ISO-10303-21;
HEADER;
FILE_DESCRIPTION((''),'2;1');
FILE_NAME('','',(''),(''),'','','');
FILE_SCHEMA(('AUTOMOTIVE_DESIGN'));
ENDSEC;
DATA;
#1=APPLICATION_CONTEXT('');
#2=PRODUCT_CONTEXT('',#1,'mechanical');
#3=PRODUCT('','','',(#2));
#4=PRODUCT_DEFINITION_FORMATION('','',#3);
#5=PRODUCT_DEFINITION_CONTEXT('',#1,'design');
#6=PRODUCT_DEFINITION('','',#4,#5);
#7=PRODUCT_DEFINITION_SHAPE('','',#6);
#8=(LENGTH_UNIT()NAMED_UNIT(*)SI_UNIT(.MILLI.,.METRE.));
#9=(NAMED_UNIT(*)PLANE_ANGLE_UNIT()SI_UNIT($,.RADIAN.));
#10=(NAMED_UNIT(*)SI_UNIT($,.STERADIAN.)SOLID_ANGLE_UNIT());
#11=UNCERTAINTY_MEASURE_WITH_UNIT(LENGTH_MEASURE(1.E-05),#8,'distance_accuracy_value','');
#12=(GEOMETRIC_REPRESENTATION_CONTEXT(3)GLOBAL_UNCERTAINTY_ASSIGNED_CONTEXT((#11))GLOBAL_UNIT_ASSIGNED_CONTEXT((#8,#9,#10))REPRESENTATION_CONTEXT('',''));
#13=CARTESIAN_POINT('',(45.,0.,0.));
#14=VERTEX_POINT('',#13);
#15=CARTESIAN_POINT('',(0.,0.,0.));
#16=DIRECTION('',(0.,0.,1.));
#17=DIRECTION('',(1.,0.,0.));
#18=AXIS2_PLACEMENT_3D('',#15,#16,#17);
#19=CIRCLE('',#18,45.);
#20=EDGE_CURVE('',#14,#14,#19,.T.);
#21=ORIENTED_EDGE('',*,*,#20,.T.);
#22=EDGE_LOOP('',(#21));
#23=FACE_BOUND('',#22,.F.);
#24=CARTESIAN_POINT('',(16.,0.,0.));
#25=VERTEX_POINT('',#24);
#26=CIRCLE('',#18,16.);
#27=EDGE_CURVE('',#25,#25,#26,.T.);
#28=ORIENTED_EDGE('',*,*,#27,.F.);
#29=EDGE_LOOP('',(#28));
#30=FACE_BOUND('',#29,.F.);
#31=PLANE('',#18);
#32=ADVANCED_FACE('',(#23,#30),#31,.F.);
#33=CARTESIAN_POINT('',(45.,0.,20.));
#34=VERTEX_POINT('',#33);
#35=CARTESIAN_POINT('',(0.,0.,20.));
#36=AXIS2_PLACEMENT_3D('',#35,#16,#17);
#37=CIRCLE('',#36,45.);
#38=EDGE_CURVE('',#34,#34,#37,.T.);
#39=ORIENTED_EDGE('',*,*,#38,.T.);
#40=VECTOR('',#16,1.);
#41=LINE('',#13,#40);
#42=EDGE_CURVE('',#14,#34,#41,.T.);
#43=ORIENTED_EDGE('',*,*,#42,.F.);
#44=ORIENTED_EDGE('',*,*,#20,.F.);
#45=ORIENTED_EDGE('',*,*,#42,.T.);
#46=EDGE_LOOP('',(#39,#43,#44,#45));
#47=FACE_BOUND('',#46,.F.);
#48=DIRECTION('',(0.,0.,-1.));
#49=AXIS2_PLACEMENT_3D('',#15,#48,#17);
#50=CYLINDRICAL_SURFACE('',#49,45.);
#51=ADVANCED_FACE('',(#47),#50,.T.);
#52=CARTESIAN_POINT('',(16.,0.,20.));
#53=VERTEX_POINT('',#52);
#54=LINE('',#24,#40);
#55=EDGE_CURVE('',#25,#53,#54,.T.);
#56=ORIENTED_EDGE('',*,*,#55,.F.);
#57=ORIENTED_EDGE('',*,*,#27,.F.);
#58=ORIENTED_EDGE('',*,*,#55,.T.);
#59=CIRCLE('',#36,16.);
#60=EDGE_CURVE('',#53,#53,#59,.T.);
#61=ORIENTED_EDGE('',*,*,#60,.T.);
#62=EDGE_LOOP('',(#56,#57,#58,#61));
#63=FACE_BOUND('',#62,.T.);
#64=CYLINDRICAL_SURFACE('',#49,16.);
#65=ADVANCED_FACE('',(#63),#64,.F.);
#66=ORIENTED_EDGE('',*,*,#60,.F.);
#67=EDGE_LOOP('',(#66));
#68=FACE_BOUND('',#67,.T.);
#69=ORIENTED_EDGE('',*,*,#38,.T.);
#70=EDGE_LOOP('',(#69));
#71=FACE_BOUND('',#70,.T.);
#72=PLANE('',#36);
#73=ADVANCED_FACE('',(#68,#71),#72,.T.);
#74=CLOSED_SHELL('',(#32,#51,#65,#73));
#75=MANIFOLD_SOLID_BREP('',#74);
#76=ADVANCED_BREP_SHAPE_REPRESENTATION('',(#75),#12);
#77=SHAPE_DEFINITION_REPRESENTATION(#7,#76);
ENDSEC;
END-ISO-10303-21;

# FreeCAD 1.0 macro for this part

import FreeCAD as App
import Part
import Sketcher

V = App.Vector

doc = App.newDocument("Part")
body = doc.addObject("PartDesign::Body", "Body")

# Sketch on XY plane
sketch1 = doc.addObject("Sketcher::SketchObject", "Sketch")
body.addObject(sketch1)
sketch1.AttachmentSupport = (doc.XY_Plane, [""])
sketch1.MapMode = "FlatFace"
sketch1.addGeometry([
    Part.Circle(V(0, 0, 0), V(0, 0, 1), 45),
    Part.Circle(V(0, 0, 0), V(0, 0, 1), 16),
], False)
sketch1.addConstraint([
    Sketcher.Constraint("Coincident", 0, 3, -1, 1),
    Sketcher.Constraint("Coincident", 1, 3, -1, 1),
    Sketcher.Constraint("Diameter", 0, 90.0),
    Sketcher.Constraint("Diameter", 1, 32.0),
])
pad1 = doc.addObject("PartDesign::Pad", "Pad")
body.addObject(pad1)
pad1.Profile = sketch1
pad1.Length = 20

doc.recompute()
